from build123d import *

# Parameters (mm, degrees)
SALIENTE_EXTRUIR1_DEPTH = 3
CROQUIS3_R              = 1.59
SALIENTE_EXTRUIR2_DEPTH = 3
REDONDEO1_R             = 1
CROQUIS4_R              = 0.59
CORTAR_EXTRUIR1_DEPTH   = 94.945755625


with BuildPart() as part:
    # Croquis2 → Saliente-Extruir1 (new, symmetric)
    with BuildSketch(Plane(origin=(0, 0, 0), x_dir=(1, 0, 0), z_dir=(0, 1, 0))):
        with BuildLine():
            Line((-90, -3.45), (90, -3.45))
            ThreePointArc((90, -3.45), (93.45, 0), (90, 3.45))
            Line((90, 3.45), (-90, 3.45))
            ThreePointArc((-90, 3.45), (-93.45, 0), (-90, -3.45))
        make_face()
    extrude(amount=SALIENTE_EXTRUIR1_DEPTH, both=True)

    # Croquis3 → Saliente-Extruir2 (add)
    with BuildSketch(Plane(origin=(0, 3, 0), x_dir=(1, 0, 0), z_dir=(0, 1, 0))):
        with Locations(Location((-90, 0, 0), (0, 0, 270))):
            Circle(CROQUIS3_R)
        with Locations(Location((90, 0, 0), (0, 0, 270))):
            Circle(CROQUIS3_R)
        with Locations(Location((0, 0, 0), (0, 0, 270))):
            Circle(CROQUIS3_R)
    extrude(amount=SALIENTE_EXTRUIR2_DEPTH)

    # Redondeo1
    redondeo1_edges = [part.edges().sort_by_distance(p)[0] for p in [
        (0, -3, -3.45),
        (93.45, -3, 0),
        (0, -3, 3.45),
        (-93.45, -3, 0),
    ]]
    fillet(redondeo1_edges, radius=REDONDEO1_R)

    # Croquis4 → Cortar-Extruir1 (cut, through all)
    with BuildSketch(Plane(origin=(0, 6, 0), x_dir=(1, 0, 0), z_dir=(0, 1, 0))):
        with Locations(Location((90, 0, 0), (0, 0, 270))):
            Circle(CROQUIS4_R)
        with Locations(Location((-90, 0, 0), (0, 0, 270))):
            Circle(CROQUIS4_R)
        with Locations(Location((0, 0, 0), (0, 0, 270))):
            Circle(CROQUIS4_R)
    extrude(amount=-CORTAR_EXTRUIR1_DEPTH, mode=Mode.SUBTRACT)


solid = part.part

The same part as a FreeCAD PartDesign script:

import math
import FreeCAD as App
import Part
import Sketcher

V = App.Vector
Q = App.Units.Quantity


def edges_at(feature, points):
    """Names of the edges that pass closest to the given points."""
    edges = feature.Shape.Edges
    near = lambda p: min(range(len(edges)), key=lambda i: edges[i].distToShape(Part.Vertex(*p))[0])
    return sorted({f"Edge{near(p) + 1}" for p in points})

doc = App.newDocument("Part")
body = doc.addObject("PartDesign::Body", "Body")

sketch1 = body.newObject("Sketcher::SketchObject", "Sketch")
sketch1.AttachmentSupport = (doc.getObject("XZ_Plane"), [""])
sketch1.MapMode = "FlatFace"
sketch1.addGeometry(Part.LineSegment(V(-90, 3.5, 0), V(90, 3.5, 0)), False)
sketch1.addGeometry(Part.ArcOfCircle(Part.Circle(V(90, 0, 0), V(0, 0, 1), 3.5), math.radians(-90), math.radians(90)), False)
sketch1.addGeometry(Part.LineSegment(V(90, -3.5, 0), V(-90, -3.5, 0)), False)
sketch1.addGeometry(Part.ArcOfCircle(Part.Circle(V(-90, 0, 0), V(0, 0, 1), 3.5), math.radians(90), math.radians(270)), False)
sketch1.addConstraint(Sketcher.Constraint("Tangent", 0, 2, 1, 2))
sketch1.addConstraint(Sketcher.Constraint("Tangent", 1, 1, 2, 1))
sketch1.addConstraint(Sketcher.Constraint("Tangent", 2, 2, 3, 2))
sketch1.addConstraint(Sketcher.Constraint("Tangent", 3, 1, 0, 1))
sketch1.addConstraint(Sketcher.Constraint("Horizontal", 0))
sketch1.addConstraint(Sketcher.Constraint("Horizontal", 2))
sketch1.addConstraint(Sketcher.Constraint("Symmetric", 1, 3, 3, 3, -1, 1))
sketch1.addConstraint(Sketcher.Constraint("DistanceX", 0, 1, 0, 2, Q("180 mm")))
sketch1.addConstraint(Sketcher.Constraint("Radius", 1, Q("3.45 mm")))
pad1 = body.newObject("PartDesign::Pad", "Pad")
pad1.Profile = sketch1
pad1.Length = 6
pad1.Midplane = True

sketch2 = body.newObject("Sketcher::SketchObject", "Sketch001")
sketch2.AttachmentSupport = (doc.getObject("XZ_Plane"), [""])
sketch2.MapMode = "FlatFace"
sketch2.AttachmentOffset = App.Placement(V(0, 0, -3), App.Rotation())
sketch2.addGeometry(Part.Circle(V(-90, 0, 0), V(0, 0, 1), 1.6), False)
sketch2.addGeometry(Part.Circle(V(90, 0, 0), V(0, 0, 1), 1.6), False)
sketch2.addGeometry(Part.Circle(V(0, 0, 0), V(0, 0, 1), 1.6), False)
sketch2.addConstraint(Sketcher.Constraint("Coincident", 2, 3, -1, 1))
sketch2.addConstraint(Sketcher.Constraint("Equal", 0, 1))
sketch2.addConstraint(Sketcher.Constraint("Equal", 1, 2))
sketch2.addConstraint(Sketcher.Constraint("Symmetric", 0, 3, 1, 3, -1, 1))
sketch2.addConstraint(Sketcher.Constraint("PointOnObject", 0, 3, -1))
sketch2.addConstraint(Sketcher.Constraint("Diameter", 0, Q("3.18 mm")))
sketch2.addConstraint(Sketcher.Constraint("DistanceX", 0, 3, -1, 1, Q("90 mm")))
pad2 = body.newObject("PartDesign::Pad", "Pad001")
pad2.Profile = sketch2
pad2.Length = 3
pad2.Reversed = True
doc.recompute()

fillet = body.newObject("PartDesign::Fillet", "Fillet")
fillet.Base = (pad2, edges_at(pad2, [
    (0, -3, -3.45),
    (93.45, -3, 0),
    (0, -3, 3.45),
    (-93.45, -3, 0),
]))
fillet.Radius = 1

sketch3 = body.newObject("Sketcher::SketchObject", "Sketch002")
sketch3.AttachmentSupport = (doc.getObject("XZ_Plane"), [""])
sketch3.MapMode = "FlatFace"
sketch3.AttachmentOffset = App.Placement(V(0, 0, -6), App.Rotation())
sketch3.addGeometry(Part.Circle(V(90, 0, 0), V(0, 0, 1), 0.6), False)
sketch3.addGeometry(Part.Circle(V(-90, 0, 0), V(0, 0, 1), 0.6), False)
sketch3.addGeometry(Part.Circle(V(0, 0, 0), V(0, 0, 1), 0.6), False)
sketch3.addConstraint(Sketcher.Constraint("Coincident", 2, 3, -1, 1))
sketch3.addConstraint(Sketcher.Constraint("Equal", 0, 1))
sketch3.addConstraint(Sketcher.Constraint("Equal", 1, 2))
sketch3.addConstraint(Sketcher.Constraint("Symmetric", 0, 3, 1, 3, -1, 1))
sketch3.addConstraint(Sketcher.Constraint("PointOnObject", 0, 3, -1))
sketch3.addConstraint(Sketcher.Constraint("Diameter", 0, Q("1.18 mm")))
sketch3.addConstraint(Sketcher.Constraint("DistanceX", -1, 1, 0, 3, Q("90 mm")))
pocket1 = body.newObject("PartDesign::Pocket", "Pocket")
pocket1.Profile = sketch3
pocket1.Type = "ThroughAll"
pocket1.Reversed = True

doc.recompute()
